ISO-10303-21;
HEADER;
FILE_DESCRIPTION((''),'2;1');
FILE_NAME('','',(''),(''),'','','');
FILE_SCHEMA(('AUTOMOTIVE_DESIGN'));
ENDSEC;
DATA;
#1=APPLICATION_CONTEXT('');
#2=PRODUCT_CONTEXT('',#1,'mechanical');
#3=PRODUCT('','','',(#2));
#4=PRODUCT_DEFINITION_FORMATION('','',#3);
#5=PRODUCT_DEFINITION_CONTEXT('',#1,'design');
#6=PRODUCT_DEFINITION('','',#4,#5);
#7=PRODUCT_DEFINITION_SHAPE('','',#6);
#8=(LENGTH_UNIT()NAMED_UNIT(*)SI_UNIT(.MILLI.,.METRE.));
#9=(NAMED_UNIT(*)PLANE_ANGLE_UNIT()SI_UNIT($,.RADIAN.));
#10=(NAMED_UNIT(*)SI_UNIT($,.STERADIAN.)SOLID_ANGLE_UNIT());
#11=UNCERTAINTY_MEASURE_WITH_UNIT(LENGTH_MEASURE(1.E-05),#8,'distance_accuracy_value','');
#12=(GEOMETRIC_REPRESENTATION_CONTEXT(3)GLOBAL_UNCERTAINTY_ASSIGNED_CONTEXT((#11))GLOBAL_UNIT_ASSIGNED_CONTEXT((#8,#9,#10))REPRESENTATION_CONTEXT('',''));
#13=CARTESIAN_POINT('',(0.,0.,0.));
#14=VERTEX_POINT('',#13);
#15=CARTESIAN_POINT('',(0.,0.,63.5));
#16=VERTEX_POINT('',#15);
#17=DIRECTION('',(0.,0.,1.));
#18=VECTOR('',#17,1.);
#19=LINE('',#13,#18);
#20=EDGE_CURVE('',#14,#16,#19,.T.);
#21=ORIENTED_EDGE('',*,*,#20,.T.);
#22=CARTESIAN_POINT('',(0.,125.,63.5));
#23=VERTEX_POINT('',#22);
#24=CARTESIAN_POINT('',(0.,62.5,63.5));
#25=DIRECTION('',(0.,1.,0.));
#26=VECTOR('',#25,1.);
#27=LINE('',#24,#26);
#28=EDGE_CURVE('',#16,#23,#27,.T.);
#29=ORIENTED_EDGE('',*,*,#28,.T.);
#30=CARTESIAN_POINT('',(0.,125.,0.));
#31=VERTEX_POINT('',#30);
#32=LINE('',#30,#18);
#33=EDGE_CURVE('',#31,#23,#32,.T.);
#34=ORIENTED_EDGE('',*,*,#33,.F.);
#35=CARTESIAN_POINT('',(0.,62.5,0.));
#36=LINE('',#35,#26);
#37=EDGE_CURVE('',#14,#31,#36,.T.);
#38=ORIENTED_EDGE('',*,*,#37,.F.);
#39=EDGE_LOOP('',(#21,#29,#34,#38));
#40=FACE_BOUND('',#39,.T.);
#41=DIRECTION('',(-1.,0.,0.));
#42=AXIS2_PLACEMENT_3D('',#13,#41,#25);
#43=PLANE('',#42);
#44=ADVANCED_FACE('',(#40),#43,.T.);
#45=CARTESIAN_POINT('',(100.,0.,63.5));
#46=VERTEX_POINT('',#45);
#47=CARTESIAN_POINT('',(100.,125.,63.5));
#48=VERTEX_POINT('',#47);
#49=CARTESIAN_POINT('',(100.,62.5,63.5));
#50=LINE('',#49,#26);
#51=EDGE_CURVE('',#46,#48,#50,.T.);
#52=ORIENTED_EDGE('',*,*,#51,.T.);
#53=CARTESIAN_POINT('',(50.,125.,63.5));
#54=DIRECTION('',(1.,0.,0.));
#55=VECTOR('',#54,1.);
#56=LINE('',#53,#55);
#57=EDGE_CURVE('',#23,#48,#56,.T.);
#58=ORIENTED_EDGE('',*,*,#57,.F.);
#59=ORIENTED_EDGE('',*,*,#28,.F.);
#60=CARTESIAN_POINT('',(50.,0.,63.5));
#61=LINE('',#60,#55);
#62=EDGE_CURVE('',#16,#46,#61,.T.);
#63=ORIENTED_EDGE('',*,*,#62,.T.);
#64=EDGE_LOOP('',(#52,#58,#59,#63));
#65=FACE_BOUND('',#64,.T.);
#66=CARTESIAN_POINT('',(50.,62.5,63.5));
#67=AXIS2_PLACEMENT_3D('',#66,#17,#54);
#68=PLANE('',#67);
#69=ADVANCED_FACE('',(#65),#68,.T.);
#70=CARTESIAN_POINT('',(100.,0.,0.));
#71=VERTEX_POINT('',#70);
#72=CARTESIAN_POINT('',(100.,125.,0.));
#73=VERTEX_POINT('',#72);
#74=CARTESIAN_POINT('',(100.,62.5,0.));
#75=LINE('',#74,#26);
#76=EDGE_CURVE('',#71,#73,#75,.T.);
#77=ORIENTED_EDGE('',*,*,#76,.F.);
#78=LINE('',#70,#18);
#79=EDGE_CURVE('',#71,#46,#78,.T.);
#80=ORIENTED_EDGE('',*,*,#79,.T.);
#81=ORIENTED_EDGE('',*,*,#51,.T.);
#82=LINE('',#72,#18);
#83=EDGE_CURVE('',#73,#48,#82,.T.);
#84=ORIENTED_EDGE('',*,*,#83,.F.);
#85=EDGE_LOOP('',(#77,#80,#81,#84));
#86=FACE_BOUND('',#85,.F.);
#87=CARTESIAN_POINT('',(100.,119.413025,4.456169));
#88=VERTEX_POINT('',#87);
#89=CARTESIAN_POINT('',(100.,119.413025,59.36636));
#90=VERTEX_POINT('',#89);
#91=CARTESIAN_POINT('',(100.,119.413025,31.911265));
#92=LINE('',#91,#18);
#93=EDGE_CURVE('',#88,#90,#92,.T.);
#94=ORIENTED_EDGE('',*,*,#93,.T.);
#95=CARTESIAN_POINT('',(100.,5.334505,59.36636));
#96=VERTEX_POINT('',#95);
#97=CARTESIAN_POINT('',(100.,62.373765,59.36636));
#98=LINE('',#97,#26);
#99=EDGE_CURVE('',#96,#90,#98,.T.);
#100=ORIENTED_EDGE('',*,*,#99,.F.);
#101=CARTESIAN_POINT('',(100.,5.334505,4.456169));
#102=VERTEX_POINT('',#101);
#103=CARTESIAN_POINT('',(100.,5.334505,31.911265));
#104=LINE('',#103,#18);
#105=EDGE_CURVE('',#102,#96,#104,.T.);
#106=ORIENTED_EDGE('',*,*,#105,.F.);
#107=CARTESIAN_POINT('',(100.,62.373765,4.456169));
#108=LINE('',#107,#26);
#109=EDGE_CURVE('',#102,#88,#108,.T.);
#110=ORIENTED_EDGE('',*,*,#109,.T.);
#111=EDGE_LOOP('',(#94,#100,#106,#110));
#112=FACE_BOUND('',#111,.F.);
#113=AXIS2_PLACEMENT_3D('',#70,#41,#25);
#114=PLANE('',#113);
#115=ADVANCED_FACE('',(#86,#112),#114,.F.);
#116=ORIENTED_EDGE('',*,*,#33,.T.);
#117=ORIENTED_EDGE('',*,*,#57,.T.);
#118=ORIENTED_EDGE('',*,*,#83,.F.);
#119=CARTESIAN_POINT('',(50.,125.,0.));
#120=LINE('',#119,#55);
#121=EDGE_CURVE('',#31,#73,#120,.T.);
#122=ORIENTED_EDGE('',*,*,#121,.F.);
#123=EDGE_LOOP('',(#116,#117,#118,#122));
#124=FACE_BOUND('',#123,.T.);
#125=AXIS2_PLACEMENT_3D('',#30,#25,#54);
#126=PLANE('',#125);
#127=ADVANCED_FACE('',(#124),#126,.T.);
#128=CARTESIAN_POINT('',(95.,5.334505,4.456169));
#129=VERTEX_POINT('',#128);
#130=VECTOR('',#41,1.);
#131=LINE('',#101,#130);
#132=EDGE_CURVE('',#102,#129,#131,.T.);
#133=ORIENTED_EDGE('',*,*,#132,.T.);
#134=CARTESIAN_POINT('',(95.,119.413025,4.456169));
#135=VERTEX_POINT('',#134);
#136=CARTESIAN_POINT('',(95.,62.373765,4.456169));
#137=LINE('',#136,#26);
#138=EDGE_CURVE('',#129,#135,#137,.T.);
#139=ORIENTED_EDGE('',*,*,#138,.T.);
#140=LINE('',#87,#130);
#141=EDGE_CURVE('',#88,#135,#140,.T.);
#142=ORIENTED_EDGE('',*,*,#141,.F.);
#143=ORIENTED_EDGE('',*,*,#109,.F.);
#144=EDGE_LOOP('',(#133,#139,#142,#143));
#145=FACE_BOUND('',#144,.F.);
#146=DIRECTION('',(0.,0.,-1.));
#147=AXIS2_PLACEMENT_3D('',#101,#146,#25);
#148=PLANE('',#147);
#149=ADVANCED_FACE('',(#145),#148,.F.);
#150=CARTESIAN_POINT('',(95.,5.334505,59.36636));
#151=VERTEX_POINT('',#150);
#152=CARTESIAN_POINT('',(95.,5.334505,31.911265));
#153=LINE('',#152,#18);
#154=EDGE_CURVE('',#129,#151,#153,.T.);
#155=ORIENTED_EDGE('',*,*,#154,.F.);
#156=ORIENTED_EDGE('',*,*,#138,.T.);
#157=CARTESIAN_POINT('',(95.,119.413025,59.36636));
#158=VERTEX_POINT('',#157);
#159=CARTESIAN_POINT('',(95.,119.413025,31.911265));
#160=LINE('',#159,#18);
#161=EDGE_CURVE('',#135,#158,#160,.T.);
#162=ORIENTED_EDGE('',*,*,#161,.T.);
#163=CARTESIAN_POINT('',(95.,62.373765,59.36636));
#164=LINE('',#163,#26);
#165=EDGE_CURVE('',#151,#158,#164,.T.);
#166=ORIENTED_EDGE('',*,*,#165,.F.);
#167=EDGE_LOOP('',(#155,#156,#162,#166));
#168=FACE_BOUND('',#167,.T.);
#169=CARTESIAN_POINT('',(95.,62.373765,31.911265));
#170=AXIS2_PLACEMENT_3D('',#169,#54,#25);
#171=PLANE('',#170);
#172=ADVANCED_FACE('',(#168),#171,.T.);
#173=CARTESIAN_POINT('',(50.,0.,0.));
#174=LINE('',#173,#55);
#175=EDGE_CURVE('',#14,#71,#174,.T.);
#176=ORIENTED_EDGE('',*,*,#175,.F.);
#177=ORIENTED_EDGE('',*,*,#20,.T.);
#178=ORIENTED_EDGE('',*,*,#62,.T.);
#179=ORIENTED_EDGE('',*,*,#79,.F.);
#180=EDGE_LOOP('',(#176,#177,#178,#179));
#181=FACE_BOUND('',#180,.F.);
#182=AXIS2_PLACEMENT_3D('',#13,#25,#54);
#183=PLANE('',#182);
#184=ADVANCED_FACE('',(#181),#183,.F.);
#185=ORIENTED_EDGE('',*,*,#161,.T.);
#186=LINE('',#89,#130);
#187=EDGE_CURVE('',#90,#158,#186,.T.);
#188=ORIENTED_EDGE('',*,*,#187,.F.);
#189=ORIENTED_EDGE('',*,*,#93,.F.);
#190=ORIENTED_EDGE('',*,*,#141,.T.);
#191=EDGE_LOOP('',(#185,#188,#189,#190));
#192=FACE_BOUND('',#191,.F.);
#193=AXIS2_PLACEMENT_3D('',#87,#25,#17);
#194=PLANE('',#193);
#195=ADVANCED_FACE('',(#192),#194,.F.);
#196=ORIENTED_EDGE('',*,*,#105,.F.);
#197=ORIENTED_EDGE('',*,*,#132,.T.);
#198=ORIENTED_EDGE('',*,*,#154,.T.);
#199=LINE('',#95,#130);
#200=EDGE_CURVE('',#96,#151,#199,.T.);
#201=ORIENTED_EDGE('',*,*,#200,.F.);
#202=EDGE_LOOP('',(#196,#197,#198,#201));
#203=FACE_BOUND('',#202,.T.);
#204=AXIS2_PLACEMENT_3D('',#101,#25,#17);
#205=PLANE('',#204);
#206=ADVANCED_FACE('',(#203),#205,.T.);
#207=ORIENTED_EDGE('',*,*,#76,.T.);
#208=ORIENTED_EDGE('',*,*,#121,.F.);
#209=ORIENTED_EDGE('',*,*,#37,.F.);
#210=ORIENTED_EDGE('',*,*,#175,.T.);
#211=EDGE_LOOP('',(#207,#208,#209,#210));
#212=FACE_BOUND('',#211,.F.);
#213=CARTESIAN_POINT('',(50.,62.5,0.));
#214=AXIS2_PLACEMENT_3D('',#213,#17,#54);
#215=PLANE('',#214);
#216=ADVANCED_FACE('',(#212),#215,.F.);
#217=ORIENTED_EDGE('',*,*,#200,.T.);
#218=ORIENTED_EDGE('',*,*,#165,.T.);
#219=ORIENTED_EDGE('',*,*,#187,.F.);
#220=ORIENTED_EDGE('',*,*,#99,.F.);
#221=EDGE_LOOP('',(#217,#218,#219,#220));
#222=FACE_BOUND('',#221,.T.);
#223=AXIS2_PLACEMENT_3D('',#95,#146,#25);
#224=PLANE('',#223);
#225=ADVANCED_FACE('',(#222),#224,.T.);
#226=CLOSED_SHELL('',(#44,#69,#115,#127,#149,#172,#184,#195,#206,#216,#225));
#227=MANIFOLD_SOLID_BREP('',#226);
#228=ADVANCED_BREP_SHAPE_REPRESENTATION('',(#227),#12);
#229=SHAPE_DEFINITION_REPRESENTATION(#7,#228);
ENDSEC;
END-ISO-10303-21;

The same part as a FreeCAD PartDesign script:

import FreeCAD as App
import Part
import Sketcher

V = App.Vector

doc = App.newDocument("Part")
params = doc.addObject("Spreadsheet::Sheet", "Params")
for row, (alias, value) in enumerate([
    ("sketch1_width", "100 mm"),
    ("sketch1_height", "125 mm"),
    ("pad1_length", "63.5 mm"),
    ("pocket1_length", "5 mm"),
], start=1):
    params.set(f"A{row}", alias)
    params.set(f"B{row}", "=" + value)
    params.setAlias(f"B{row}", alias)

body = doc.addObject("PartDesign::Body", "Body")

sketch1 = body.newObject("Sketcher::SketchObject", "Sketch")
sketch1.AttachmentSupport = (doc.getObject("XY_Plane"), [""])
sketch1.MapMode = "FlatFace"
sketch1.addGeometry([
    Part.LineSegment(V(0, 125, 0), V(0, 0, 0)),
    Part.LineSegment(V(0, 0, 0), V(100, 0, 0)),
    Part.LineSegment(V(100, 0, 0), V(100, 125, 0)),
    Part.LineSegment(V(100, 125, 0), V(0, 125, 0)),
], False)
sketch1.addConstraint([
    Sketcher.Constraint("Coincident", 0, 2, 1, 1),
    Sketcher.Constraint("Coincident", 1, 2, 2, 1),
    Sketcher.Constraint("Coincident", 2, 2, 3, 1),
    Sketcher.Constraint("Coincident", 3, 2, 0, 1),
    Sketcher.Constraint("Vertical", 0),
    Sketcher.Constraint("Horizontal", 1),
    Sketcher.Constraint("Vertical", 2),
    Sketcher.Constraint("Horizontal", 3),
    Sketcher.Constraint("Coincident", 0, 2, -1, 1),
    Sketcher.Constraint("DistanceX", 1, 1, 1, 2, 100.0),
    Sketcher.Constraint("DistanceY", 0, 2, 0, 1, 125.0),
])
sketch1.setExpression("Constraints[9]", "Params.sketch1_width")
sketch1.setExpression("Constraints[10]", "Params.sketch1_height")
pad1 = body.newObject("PartDesign::Pad", "Pad")
pad1.Profile = sketch1
pad1.setExpression("Length", "Params.pad1_length")

sketch2 = body.newObject("Sketcher::SketchObject", "Sketch001")
sketch2.AttachmentSupport = (doc.getObject("YZ_Plane"), [""])
sketch2.MapMode = "FlatFace"
sketch2.AttachmentOffset = App.Placement(V(0, 0, 100), App.Rotation())
sketch2.addGeometry([
    Part.LineSegment(V(5, 59, 0), V(5, 4, 0)),
    Part.LineSegment(V(5, 4, 0), V(119, 4, 0)),
    Part.LineSegment(V(119, 4, 0), V(119, 59, 0)),
    Part.LineSegment(V(119, 59, 0), V(5, 59, 0)),
], False)
sketch2.addConstraint([
    Sketcher.Constraint("Coincident", 0, 2, 1, 1),
    Sketcher.Constraint("Coincident", 1, 2, 2, 1),
    Sketcher.Constraint("Coincident", 2, 2, 3, 1),
    Sketcher.Constraint("Coincident", 3, 2, 0, 1),
    Sketcher.Constraint("Vertical", 0),
    Sketcher.Constraint("Horizontal", 1),
    Sketcher.Constraint("Vertical", 2),
    Sketcher.Constraint("Horizontal", 3),
    Sketcher.Constraint("DistanceX", 1, 1, 1, 2, 114.07852),
    Sketcher.Constraint("DistanceY", 0, 2, 0, 1, 54.910191),
    Sketcher.Constraint("DistanceY", -1, 1, 0, 2, 4.456169),
    Sketcher.Constraint("DistanceX", -1, 1, 0, 2, 5.334505),
])
pocket1 = body.newObject("PartDesign::Pocket", "Pocket")
pocket1.Profile = sketch2
pocket1.setExpression("Length", "Params.pocket1_length")

doc.recompute()
